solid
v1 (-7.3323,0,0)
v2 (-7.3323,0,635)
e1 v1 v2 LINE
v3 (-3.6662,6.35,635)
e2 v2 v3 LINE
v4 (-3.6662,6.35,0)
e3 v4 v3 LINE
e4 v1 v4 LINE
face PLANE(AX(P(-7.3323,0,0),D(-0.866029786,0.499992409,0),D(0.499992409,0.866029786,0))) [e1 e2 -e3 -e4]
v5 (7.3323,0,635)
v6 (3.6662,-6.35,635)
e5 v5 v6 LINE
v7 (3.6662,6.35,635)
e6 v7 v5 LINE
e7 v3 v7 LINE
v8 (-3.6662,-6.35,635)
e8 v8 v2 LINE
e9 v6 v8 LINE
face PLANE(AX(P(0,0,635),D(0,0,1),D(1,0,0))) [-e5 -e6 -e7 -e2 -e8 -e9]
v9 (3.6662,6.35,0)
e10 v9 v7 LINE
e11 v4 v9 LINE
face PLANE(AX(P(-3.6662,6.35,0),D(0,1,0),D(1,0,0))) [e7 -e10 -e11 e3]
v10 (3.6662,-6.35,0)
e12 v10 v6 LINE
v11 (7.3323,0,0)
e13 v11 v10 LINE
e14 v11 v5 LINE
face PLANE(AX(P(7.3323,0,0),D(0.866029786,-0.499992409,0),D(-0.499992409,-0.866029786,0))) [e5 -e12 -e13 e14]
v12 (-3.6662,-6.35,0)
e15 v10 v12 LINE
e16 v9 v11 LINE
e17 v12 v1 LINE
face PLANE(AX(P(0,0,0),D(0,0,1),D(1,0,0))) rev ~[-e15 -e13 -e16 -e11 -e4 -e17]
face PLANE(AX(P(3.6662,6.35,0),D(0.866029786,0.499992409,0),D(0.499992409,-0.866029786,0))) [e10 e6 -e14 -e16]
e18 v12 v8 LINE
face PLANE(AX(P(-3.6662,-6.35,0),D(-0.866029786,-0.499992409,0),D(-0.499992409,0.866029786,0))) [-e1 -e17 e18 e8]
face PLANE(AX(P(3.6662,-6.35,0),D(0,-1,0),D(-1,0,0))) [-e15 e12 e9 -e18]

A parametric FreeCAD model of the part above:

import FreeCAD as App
import Part
import Sketcher
Q = App.Units.Quantity

doc = App.newDocument("Part")
body = doc.addObject("PartDesign::Body", "Body")

# Sketch on XY plane
sketch1 = doc.addObject("Sketcher::SketchObject", "Sketch")
body.addObject(sketch1)
sketch1.AttachmentSupport = (doc.XY_Plane, [""])
sketch1.MapMode = "FlatFace"
sketch1.addGeometry(Part.LineSegment(App.Vector(7.3323, 0, 0), App.Vector(3.6662, 6.35, 0)), False)
sketch1.addGeometry(Part.LineSegment(App.Vector(3.6662, 6.35, 0), App.Vector(-3.6662, 6.35, 0)), False)
sketch1.addGeometry(Part.LineSegment(App.Vector(-3.6662, 6.35, 0), App.Vector(-7.3323, 0, 0)), False)
sketch1.addGeometry(Part.LineSegment(App.Vector(-7.3323, 0, 0), App.Vector(-3.6662, -6.35, 0)), False)
sketch1.addGeometry(Part.LineSegment(App.Vector(-3.6662, -6.35, 0), App.Vector(3.6662, -6.35, 0)), False)
sketch1.addGeometry(Part.LineSegment(App.Vector(3.6662, -6.35, 0), App.Vector(7.3323, 0, 0)), False)
sketch1.addConstraint(Sketcher.Constraint("Coincident", 0, 2, 1, 1))
sketch1.addConstraint(Sketcher.Constraint("Coincident", 1, 2, 2, 1))
sketch1.addConstraint(Sketcher.Constraint("Coincident", 2, 2, 3, 1))
sketch1.addConstraint(Sketcher.Constraint("Coincident", 3, 2, 4, 1))
sketch1.addConstraint(Sketcher.Constraint("Coincident", 4, 2, 5, 1))
sketch1.addConstraint(Sketcher.Constraint("Coincident", 5, 2, 0, 1))
sketch1.addConstraint(Sketcher.Constraint("Horizontal", 1))
sketch1.addConstraint(Sketcher.Constraint("Horizontal", 4))
sketch1.addConstraint(Sketcher.Constraint("Symmetric", 0, 2, 3, 2, -1, 1))
sketch1.addConstraint(Sketcher.Constraint("Symmetric", 2, 2, 5, 2, -1, 1))
sketch1.addConstraint(Sketcher.Constraint("PointOnObject", 2, 2, -1))
sketch1.addConstraint(Sketcher.Constraint("Parallel", 2, 5))
sketch1.addConstraint(Sketcher.Constraint("Vertical", 1, 2, 3, 2))
sketch1.addConstraint(Sketcher.Constraint("DistanceY", 3, 2, 1, 2, Q("0.5 in")))
sketch1.addConstraint(Sketcher.Constraint("Angle", 0, Q("119.9995 deg")))
sketch1.addConstraint(Sketcher.Constraint("DistanceX", 2, 2, 0, 2, Q("0.433 in")))
pad1 = doc.addObject("PartDesign::Pad", "Pad")
body.addObject(pad1)
pad1.Profile = sketch1
pad1.Length = Q("25 in")

doc.recompute()
